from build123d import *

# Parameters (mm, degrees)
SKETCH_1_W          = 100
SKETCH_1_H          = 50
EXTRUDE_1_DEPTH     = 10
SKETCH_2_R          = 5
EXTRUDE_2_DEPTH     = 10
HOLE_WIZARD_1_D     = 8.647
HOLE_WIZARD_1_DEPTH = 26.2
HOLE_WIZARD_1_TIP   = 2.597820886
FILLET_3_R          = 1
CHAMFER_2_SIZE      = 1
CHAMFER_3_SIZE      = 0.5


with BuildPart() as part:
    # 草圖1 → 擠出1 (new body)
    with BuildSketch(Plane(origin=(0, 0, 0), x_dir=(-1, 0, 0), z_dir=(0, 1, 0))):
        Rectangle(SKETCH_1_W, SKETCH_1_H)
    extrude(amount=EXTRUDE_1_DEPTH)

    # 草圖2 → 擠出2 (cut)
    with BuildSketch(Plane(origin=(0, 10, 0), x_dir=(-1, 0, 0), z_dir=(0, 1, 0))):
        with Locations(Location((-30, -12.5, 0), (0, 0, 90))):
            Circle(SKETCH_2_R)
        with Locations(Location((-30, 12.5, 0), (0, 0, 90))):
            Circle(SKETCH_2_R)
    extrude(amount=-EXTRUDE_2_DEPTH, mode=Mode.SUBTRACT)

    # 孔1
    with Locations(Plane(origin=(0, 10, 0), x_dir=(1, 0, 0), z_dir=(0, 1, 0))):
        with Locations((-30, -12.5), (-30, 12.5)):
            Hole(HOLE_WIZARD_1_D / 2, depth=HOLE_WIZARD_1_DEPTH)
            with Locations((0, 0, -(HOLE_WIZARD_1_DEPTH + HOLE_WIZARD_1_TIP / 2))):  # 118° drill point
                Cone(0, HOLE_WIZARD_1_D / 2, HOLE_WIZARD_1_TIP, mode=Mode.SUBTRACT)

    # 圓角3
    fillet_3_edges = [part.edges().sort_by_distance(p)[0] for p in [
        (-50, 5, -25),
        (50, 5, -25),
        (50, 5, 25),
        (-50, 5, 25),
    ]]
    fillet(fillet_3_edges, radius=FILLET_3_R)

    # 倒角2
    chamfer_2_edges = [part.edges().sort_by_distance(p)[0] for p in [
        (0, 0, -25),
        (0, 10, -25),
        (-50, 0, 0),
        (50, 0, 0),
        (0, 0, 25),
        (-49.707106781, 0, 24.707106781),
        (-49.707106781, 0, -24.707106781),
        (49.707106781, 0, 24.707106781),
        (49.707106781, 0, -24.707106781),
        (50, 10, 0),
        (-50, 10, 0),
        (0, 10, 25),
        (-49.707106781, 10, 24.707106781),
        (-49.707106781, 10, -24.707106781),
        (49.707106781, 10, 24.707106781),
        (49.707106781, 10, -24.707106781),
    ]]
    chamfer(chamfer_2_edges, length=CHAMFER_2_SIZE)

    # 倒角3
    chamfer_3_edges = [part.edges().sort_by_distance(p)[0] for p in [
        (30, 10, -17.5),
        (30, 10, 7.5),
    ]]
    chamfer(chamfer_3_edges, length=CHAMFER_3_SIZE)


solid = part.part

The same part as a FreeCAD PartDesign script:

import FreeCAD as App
import Part
import Sketcher
from FreeCAD import Vector
Q = App.Units.Quantity


def edges_at(feature, points):
    """Names of the edges that pass closest to the given points."""
    edges = feature.Shape.Edges
    near = lambda p: min(range(len(edges)), key=lambda i: edges[i].distToShape(Part.Vertex(*p))[0])
    return sorted({f"Edge{near(p) + 1}" for p in points})


def add_polygon(sketch, points):
    """Adds a closed chain of lines whose ends are joined by coincident constraints."""
    first, n = sketch.GeometryCount, len(points)
    for a, b in zip(points, points[1:] + points[:1]):
        sketch.addGeometry(Part.LineSegment(App.Vector(*a, 0), App.Vector(*b, 0)), False)
    for i in range(n):
        sketch.addConstraint(Sketcher.Constraint("Coincident", first + i, 2, first + (i + 1) % n, 1))

doc = App.newDocument("Part")
params = doc.addObject("Spreadsheet::Sheet", "Params")
for row, (alias, value) in enumerate([
    ("sketch1_width", "100 mm"),
    ("sketch1_height", "50 mm"),
    ("pad1_length", "10 mm"),
    ("sketch2_diameter", "10 mm"),
    ("pocket1_length", "10 mm"),
    ("hole_diameter", "8.647 mm"),
    ("hole_depth", "26.2 mm"),
    ("fillet_radius", "1 mm"),
    ("chamfer_size", "1 mm"),
    ("chamfer2_size", "0.5 mm"),
], start=1):
    params.set(f"A{row}", alias)
    params.set(f"B{row}", "=" + value)
    params.setAlias(f"B{row}", alias)

body = doc.addObject("PartDesign::Body", "Body")

# Sketch on XZ plane
sketch1 = doc.addObject("Sketcher::SketchObject", "Sketch")
body.addObject(sketch1)
sketch1.AttachmentSupport = (doc.XZ_Plane, [""])
sketch1.MapMode = "FlatFace"
add_polygon(sketch1, [(50, 25), (50, -25), (-50, -25), (-50, 25)])  # lines 0-3
sketch1.addConstraint(Sketcher.Constraint("Vertical", 0))
sketch1.addConstraint(Sketcher.Constraint("Horizontal", 1))
sketch1.addConstraint(Sketcher.Constraint("Vertical", 2))
sketch1.addConstraint(Sketcher.Constraint("Horizontal", 3))
sketch1.addConstraint(Sketcher.Constraint("Symmetric", 0, 2, 2, 2, -1, 1))
sketch1.addConstraint(Sketcher.Constraint("DistanceX", 1, 2, 1, 1, Q("100 mm")))
sketch1.addConstraint(Sketcher.Constraint("DistanceY", 0, 2, 0, 1, Q("50 mm")))
sketch1.setExpression("Constraints[9]", "Params.sketch1_width")
sketch1.setExpression("Constraints[10]", "Params.sketch1_height")
pad1 = doc.addObject("PartDesign::Pad", "Pad")
body.addObject(pad1)
pad1.Profile = sketch1
pad1.setExpression("Length", "Params.pad1_length")
pad1.Reversed = True

# Sketch on XZ plane
sketch2 = doc.addObject("Sketcher::SketchObject", "Sketch001")
body.addObject(sketch2)
sketch2.AttachmentSupport = (doc.XZ_Plane, [""])
sketch2.MapMode = "FlatFace"
sketch2.AttachmentOffset = App.Placement(Vector(0, 0, -10), App.Rotation())
sketch2.addGeometry(Part.Circle(Vector(30, -12, 0), Vector(0, 0, 1), 5), False)
sketch2.addGeometry(Part.Circle(Vector(30, 12, 0), Vector(0, 0, 1), 5), False)
sketch2.addConstraint(Sketcher.Constraint("Equal", 0, 1))
sketch2.addConstraint(Sketcher.Constraint("Symmetric", 0, 3, 1, 3, -1))
sketch2.addConstraint(Sketcher.Constraint("Diameter", 0, Q("10 mm")))
sketch2.addConstraint(Sketcher.Constraint("DistanceX", -1, 1, 0, 3, Q("30 mm")))
sketch2.addConstraint(Sketcher.Constraint("DistanceY", 0, 3, 1, 3, Q("25 mm")))
sketch2.setExpression("Constraints[2]", "Params.sketch2_diameter")
pocket1 = doc.addObject("PartDesign::Pocket", "Pocket")
body.addObject(pocket1)
pocket1.Profile = sketch2
pocket1.setExpression("Length", "Params.pocket1_length")
pocket1.Reversed = True

# Sketch on XZ plane
sketch3 = doc.addObject("Sketcher::SketchObject", "Sketch002")
body.addObject(sketch3)
sketch3.AttachmentSupport = (doc.XZ_Plane, [""])
sketch3.MapMode = "FlatFace"
sketch3.AttachmentOffset = App.Placement(Vector(0, 0, -10), App.Rotation())
sketch3.addGeometry(Part.Circle(Vector(-30, 12.5, 0), Vector(0, 0, 1), 4.3), False)
sketch3.addGeometry(Part.Circle(Vector(-30, -12.5, 0), Vector(0, 0, 1), 4.3), False)
sketch3.addConstraint(Sketcher.Constraint("Equal", 0, 1))
sketch3.addConstraint(Sketcher.Constraint("Symmetric", 0, 3, 1, 3, -1))
sketch3.addConstraint(Sketcher.Constraint("Diameter", 0, Q("8.647 mm")))
sketch3.addConstraint(Sketcher.Constraint("DistanceX", 0, 3, -1, 1, Q("30 mm")))
sketch3.addConstraint(Sketcher.Constraint("DistanceY", 1, 3, 0, 3, Q("25 mm")))
doc.recompute()
hole = doc.addObject("PartDesign::Hole", "Hole")
body.addObject(hole)
hole.Profile = sketch3
hole.ThreadType = "None"
hole.setExpression("Diameter", "Params.hole_diameter")
hole.DepthType = "Dimension"
hole.setExpression("Depth", "Params.hole_depth")
hole.DrillPoint = "Angled"
hole.DrillPointAngle = 118
hole.Reversed = True
doc.recompute()

fillet = doc.addObject("PartDesign::Fillet", "Fillet")
body.addObject(fillet)
fillet.Base = (hole, edges_at(hole, [
    (-50, 5, -25),
    (50, 5, -25),
    (50, 5, 25),
    (-50, 5, 25),
]))
fillet.setExpression("Radius", "Params.fillet_radius")
doc.recompute()

chamfer = doc.addObject("PartDesign::Chamfer", "Chamfer")
body.addObject(chamfer)
chamfer.Base = (fillet, edges_at(fillet, [
    (0, 0, -25),
    (0, 10, -25),
    (-50, 0, 0),
    (50, 0, 0),
    (0, 0, 25),
    (-49.707, 0, 24.707),
    (-49.707, 0, -24.707),
    (49.707, 0, 24.707),
    (49.707, 0, -24.707),
    (50, 10, 0),
    (-50, 10, 0),
    (0, 10, 25),
    (-49.707, 10, 24.707),
    (-49.707, 10, -24.707),
    (49.707, 10, 24.707),
    (49.707, 10, -24.707),
]))
chamfer.setExpression("Size", "Params.chamfer_size")
doc.recompute()

chamfer2 = doc.addObject("PartDesign::Chamfer", "Chamfer001")
body.addObject(chamfer2)
chamfer2.Base = (chamfer, edges_at(chamfer, [(30, 10, -17.5), (30, 10, 7.5)]))
chamfer2.setExpression("Size", "Params.chamfer2_size")

doc.recompute()
